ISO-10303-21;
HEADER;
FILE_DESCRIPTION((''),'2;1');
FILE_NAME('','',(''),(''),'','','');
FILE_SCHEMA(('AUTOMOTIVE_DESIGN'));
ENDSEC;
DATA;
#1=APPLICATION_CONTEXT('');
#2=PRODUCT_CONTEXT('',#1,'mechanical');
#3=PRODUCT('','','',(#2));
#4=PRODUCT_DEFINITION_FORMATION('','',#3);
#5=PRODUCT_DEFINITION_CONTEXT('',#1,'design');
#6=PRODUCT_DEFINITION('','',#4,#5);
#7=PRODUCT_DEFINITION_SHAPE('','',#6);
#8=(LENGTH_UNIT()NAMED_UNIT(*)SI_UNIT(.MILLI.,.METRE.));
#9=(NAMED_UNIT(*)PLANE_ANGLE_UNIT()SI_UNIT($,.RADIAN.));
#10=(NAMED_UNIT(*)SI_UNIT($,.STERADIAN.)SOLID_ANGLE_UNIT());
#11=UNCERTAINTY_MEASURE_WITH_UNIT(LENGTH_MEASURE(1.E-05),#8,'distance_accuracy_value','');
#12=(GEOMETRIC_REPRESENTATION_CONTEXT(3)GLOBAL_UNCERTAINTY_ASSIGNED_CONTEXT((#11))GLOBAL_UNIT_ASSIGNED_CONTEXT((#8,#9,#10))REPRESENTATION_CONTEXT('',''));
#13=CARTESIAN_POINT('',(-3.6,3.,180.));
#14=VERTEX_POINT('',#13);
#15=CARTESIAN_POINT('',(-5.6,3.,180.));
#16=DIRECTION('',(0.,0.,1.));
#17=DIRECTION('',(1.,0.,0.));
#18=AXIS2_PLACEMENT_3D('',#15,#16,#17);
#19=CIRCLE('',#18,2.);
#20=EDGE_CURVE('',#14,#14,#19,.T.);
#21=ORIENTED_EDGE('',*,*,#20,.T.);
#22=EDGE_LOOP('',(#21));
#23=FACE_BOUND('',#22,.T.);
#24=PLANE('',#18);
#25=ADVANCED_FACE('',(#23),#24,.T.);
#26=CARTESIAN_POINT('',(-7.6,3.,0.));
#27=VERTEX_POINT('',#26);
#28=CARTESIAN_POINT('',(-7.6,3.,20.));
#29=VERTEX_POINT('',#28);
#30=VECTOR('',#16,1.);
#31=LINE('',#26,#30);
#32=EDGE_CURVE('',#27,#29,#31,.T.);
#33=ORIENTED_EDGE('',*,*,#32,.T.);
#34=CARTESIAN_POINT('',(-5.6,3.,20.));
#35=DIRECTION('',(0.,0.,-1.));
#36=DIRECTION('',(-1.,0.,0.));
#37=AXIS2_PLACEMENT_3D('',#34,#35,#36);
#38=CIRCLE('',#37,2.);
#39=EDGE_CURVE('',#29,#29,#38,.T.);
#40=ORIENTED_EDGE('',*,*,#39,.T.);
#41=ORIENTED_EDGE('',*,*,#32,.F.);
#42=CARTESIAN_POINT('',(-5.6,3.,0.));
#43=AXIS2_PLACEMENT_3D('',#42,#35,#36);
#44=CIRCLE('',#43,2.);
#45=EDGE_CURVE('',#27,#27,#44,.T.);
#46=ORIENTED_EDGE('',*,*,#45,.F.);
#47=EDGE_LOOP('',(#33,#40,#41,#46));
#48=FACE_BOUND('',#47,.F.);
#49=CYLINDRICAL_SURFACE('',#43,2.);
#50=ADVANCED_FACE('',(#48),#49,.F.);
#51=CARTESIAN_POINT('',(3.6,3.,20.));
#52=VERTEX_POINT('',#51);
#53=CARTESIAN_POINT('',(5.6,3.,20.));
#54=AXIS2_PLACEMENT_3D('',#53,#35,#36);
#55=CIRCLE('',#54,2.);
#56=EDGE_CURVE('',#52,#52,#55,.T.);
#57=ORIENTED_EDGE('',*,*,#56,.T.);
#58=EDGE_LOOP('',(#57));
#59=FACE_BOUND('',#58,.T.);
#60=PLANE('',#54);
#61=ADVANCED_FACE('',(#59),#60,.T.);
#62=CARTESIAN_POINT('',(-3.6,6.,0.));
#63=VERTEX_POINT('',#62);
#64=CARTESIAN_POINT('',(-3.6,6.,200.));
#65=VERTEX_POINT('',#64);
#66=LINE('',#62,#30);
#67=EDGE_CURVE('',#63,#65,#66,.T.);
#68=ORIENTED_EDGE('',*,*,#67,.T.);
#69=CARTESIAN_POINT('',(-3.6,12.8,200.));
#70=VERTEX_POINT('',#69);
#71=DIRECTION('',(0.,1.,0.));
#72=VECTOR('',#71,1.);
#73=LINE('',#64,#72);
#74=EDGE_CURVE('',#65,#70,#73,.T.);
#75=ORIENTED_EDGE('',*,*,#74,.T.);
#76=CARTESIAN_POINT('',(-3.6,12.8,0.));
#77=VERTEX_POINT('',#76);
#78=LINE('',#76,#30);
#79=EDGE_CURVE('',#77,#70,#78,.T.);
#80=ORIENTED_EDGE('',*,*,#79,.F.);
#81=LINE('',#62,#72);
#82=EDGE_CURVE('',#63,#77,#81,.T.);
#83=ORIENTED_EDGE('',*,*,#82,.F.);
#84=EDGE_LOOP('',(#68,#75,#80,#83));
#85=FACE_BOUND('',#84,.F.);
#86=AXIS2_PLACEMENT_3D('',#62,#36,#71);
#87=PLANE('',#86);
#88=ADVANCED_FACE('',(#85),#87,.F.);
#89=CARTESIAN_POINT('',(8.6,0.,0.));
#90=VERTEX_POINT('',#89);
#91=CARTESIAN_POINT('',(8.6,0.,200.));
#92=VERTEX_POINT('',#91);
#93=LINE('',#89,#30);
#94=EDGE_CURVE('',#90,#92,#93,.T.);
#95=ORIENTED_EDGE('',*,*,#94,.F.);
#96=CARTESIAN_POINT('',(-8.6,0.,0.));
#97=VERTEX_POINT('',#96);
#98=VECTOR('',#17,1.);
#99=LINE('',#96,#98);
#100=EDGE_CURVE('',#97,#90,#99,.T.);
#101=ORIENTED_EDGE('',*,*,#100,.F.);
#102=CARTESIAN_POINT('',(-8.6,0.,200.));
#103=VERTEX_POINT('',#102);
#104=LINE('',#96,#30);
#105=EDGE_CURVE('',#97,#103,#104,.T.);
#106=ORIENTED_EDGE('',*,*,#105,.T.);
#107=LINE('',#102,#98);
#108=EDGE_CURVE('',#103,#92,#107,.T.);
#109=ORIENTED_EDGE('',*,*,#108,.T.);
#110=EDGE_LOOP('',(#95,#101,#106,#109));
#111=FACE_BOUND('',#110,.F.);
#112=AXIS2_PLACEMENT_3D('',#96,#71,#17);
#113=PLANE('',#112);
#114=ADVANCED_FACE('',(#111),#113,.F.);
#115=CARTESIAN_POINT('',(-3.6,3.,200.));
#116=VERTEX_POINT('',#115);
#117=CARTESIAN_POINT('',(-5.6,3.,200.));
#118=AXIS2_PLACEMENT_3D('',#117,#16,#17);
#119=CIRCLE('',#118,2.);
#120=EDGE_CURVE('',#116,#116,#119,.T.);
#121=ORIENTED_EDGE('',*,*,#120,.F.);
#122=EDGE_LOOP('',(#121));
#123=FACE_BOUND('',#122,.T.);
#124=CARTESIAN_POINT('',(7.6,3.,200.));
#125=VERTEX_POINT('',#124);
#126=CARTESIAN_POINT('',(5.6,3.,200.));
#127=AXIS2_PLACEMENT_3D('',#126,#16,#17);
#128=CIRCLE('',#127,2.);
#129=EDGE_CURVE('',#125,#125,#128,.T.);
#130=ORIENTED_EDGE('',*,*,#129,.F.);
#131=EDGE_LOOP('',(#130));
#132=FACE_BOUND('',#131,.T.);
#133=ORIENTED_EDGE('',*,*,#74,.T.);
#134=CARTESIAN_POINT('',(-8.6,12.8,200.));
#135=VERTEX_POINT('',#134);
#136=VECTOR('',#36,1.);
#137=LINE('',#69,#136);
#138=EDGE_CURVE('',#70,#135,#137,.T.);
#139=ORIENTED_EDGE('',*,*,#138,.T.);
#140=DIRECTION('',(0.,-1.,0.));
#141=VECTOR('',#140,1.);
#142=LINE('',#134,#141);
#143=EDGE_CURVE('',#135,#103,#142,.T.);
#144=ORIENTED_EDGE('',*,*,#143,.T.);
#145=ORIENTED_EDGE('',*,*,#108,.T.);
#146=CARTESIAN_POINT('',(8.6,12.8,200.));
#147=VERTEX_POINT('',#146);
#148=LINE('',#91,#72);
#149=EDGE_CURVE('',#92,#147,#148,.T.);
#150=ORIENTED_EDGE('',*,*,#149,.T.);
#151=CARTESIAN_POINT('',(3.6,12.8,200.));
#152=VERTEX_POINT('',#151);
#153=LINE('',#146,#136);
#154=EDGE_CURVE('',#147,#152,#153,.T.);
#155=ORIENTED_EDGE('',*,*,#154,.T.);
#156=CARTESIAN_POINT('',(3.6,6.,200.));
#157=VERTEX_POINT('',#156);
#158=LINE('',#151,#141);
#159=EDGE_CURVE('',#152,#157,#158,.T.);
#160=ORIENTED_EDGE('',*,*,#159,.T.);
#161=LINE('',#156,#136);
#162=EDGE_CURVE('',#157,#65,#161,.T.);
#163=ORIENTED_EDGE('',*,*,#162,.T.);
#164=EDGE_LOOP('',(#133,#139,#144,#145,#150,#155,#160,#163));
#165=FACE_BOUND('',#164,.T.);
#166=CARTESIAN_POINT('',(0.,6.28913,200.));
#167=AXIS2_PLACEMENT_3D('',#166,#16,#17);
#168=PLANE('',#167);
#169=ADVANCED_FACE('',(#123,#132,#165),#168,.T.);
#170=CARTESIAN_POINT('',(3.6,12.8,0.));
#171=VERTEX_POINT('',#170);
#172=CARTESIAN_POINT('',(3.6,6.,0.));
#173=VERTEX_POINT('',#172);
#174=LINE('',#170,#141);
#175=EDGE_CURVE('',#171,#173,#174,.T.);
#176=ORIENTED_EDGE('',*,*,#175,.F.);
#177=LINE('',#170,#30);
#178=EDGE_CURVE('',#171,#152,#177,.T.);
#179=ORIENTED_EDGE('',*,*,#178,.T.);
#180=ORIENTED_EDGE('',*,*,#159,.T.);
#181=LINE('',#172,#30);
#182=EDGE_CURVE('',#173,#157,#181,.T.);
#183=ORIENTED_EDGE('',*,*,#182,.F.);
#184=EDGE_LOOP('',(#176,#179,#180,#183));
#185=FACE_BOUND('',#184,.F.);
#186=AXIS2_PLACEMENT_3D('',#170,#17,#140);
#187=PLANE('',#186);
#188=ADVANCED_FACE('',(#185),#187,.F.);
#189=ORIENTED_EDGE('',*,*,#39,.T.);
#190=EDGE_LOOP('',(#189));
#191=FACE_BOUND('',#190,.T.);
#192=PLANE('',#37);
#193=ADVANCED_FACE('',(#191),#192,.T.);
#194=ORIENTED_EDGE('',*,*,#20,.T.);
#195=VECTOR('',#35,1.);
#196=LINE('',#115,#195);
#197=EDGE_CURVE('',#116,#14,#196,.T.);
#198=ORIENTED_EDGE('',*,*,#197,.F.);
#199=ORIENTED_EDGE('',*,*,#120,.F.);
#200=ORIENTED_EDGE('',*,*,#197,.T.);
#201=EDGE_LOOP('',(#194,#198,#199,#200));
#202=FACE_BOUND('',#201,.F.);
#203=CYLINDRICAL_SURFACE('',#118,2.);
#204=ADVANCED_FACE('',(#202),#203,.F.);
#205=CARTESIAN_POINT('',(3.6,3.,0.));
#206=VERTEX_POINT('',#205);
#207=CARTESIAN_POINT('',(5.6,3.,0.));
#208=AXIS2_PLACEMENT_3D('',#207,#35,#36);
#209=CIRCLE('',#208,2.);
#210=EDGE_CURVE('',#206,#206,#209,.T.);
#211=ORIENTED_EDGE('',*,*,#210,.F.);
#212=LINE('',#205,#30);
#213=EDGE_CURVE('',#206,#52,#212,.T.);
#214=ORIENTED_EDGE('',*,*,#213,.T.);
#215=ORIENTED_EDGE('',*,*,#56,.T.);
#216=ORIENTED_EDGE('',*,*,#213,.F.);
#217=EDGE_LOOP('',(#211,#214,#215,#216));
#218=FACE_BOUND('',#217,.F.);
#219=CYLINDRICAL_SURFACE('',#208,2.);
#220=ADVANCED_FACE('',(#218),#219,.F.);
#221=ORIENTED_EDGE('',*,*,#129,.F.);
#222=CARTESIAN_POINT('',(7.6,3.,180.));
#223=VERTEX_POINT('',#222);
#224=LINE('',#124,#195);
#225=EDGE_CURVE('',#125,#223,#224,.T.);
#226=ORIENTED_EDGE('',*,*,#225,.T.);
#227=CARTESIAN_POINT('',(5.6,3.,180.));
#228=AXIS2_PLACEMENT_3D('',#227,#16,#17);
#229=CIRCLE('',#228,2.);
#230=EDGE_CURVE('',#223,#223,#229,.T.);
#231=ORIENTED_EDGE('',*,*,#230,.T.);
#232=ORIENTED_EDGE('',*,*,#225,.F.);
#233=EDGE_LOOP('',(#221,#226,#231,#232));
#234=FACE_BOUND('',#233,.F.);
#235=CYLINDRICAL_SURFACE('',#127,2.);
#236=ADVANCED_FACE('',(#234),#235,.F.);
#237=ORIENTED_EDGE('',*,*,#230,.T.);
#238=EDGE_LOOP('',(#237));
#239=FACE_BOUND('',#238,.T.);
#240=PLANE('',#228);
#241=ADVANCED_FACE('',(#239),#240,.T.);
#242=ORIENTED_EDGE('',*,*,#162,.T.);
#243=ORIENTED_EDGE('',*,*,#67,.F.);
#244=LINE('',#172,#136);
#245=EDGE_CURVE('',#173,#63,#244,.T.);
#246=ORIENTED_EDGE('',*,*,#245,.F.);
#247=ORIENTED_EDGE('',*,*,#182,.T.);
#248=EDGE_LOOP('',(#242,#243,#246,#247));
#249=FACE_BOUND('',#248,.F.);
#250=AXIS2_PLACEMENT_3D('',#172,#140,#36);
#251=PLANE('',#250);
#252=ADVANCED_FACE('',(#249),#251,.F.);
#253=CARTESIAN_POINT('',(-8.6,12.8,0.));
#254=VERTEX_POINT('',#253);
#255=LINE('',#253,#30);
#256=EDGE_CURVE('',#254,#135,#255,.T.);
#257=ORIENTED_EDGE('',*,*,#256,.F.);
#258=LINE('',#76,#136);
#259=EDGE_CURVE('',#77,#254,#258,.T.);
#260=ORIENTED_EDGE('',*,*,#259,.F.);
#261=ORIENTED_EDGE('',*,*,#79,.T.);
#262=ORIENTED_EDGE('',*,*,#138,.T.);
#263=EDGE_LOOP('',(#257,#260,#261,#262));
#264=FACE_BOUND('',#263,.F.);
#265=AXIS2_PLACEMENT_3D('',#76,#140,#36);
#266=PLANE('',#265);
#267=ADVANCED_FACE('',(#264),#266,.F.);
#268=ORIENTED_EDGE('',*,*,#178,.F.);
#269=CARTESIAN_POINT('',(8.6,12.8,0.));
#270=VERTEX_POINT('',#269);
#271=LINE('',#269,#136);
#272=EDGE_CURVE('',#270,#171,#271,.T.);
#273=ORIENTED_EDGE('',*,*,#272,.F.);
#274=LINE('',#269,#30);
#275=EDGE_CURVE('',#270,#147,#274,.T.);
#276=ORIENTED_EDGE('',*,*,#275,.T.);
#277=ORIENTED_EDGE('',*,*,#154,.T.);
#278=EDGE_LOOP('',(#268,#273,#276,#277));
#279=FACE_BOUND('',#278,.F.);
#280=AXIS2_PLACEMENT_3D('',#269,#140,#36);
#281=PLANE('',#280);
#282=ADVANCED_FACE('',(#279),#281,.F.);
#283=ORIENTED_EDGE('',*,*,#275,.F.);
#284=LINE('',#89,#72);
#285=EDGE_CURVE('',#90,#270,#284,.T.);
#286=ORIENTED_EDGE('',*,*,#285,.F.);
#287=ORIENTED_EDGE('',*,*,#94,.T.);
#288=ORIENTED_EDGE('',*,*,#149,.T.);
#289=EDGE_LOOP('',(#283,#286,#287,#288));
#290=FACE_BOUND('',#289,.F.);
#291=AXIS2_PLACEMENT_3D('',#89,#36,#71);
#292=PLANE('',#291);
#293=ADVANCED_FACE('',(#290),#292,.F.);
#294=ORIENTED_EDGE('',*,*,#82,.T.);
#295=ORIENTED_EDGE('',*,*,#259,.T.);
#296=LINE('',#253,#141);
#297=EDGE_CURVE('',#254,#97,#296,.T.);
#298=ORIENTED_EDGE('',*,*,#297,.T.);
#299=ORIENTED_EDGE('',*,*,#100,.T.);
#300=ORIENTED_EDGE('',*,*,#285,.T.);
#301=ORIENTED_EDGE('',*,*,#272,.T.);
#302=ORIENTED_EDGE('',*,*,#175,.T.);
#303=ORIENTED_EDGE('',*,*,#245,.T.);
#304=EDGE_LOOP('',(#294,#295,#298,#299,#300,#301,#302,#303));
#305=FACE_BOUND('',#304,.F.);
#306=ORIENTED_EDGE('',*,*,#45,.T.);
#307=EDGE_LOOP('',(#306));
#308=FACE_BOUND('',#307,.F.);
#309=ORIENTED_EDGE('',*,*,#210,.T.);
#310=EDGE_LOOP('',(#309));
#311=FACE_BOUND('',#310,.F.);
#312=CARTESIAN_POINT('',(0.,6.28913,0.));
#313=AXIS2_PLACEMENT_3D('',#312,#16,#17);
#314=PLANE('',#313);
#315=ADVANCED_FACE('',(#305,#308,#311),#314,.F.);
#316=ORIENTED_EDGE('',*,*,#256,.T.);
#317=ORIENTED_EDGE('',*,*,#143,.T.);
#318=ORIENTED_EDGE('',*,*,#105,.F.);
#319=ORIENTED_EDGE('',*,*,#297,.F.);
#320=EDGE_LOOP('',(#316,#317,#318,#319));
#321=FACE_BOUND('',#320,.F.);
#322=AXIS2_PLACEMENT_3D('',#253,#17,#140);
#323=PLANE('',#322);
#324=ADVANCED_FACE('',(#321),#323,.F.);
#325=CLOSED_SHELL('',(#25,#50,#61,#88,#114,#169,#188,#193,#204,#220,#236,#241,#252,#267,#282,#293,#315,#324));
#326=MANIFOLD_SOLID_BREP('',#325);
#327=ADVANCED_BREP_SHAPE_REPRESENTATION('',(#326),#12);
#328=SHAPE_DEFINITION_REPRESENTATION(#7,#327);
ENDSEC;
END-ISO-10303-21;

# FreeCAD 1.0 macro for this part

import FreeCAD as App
import Part
import Sketcher

V = App.Vector


def add_polygon(sketch, points):
    """Adds a closed chain of lines whose ends are joined by coincident constraints."""
    first, n = sketch.GeometryCount, len(points)
    for a, b in zip(points, points[1:] + points[:1]):
        sketch.addGeometry(Part.LineSegment(App.Vector(*a, 0), App.Vector(*b, 0)), False)
    for i in range(n):
        sketch.addConstraint(Sketcher.Constraint("Coincident", first + i, 2, first + (i + 1) % n, 1))

doc = App.newDocument("Part")
body = doc.addObject("PartDesign::Body", "Body")

# Sketch on XY plane
sketch1 = doc.addObject("Sketcher::SketchObject", "Sketch")
body.addObject(sketch1)
sketch1.AttachmentSupport = (doc.XY_Plane, [""])
sketch1.MapMode = "FlatFace"
add_polygon(sketch1, [(-9, 0), (9, 0), (9, 13), (4, 13), (4, 6), (-4, 6), (-4, 13), (-9, 13)])  # lines 0-7
sketch1.addConstraint(Sketcher.Constraint("Horizontal", 0))
sketch1.addConstraint(Sketcher.Constraint("Vertical", 1))
sketch1.addConstraint(Sketcher.Constraint("Horizontal", 2))
sketch1.addConstraint(Sketcher.Constraint("Vertical", 3))
sketch1.addConstraint(Sketcher.Constraint("Horizontal", 4))
sketch1.addConstraint(Sketcher.Constraint("Vertical", 5))
sketch1.addConstraint(Sketcher.Constraint("Horizontal", 6))
sketch1.addConstraint(Sketcher.Constraint("Vertical", 7))
sketch1.addConstraint(Sketcher.Constraint("Symmetric", 0, 2, 7, 2, -1, 1))
sketch1.addConstraint(Sketcher.Constraint("Symmetric", 2, 2, 5, 2, -2))
sketch1.addConstraint(Sketcher.Constraint("DistanceX", 2, 2, 2, 1, 5.0))
sketch1.addConstraint(Sketcher.Constraint("DistanceX", 0, 1, 0, 2, 17.2))
sketch1.addConstraint(Sketcher.Constraint("DistanceY", 1, 1, 1, 2, 12.8))
sketch1.addConstraint(Sketcher.Constraint("DistanceY", 3, 2, 3, 1, 6.8))
pad1 = doc.addObject("PartDesign::Pad", "Pad")
body.addObject(pad1)
pad1.Profile = sketch1
pad1.Length = 200

# Sketch on XY plane
sketch2 = doc.addObject("Sketcher::SketchObject", "Sketch001")
body.addObject(sketch2)
sketch2.AttachmentSupport = (doc.XY_Plane, [""])
sketch2.MapMode = "FlatFace"
sketch2.AttachmentOffset = App.Placement(V(0, 0, 200), App.Rotation())
sketch2.addGeometry(Part.Circle(V(-5.6, 3, 0), V(0, 0, 1), 2), False)
sketch2.addGeometry(Part.Circle(V(5.6, 3, 0), V(0, 0, 1), 2), False)
sketch2.addConstraint(Sketcher.Constraint("Equal", 0, 1))
sketch2.addConstraint(Sketcher.Constraint("Symmetric", 0, 3, 1, 3, -2))
sketch2.addConstraint(Sketcher.Constraint("Diameter", 0, 4.0))
sketch2.addConstraint(Sketcher.Constraint("DistanceY", -1, 1, 0, 3, 3.0))
sketch2.addConstraint(Sketcher.Constraint("DistanceX", 0, 3, -1, 1, 5.6))
pocket1 = doc.addObject("PartDesign::Pocket", "Pocket")
body.addObject(pocket1)
pocket1.Profile = sketch2
pocket1.Length = 20

# Sketch on XY plane
sketch3 = doc.addObject("Sketcher::SketchObject", "Sketch002")
body.addObject(sketch3)
sketch3.AttachmentSupport = (doc.XY_Plane, [""])
sketch3.MapMode = "FlatFace"
sketch3.addGeometry(Part.Circle(V(5.6, 3, 0), V(0, 0, 1), 2), False)
sketch3.addGeometry(Part.Circle(V(-5.6, 3, 0), V(0, 0, 1), 2), False)
sketch3.addConstraint(Sketcher.Constraint("Equal", 0, 1))
sketch3.addConstraint(Sketcher.Constraint("Symmetric", 0, 3, 1, 3, -2))
sketch3.addConstraint(Sketcher.Constraint("Diameter", 0, 4.0))
sketch3.addConstraint(Sketcher.Constraint("DistanceY", -1, 1, 0, 3, 3.0))
sketch3.addConstraint(Sketcher.Constraint("DistanceX", -1, 1, 0, 3, 5.6))
pocket2 = doc.addObject("PartDesign::Pocket", "Pocket001")
body.addObject(pocket2)
pocket2.Profile = sketch3
pocket2.Length = 20
pocket2.Reversed = True

doc.recompute()
